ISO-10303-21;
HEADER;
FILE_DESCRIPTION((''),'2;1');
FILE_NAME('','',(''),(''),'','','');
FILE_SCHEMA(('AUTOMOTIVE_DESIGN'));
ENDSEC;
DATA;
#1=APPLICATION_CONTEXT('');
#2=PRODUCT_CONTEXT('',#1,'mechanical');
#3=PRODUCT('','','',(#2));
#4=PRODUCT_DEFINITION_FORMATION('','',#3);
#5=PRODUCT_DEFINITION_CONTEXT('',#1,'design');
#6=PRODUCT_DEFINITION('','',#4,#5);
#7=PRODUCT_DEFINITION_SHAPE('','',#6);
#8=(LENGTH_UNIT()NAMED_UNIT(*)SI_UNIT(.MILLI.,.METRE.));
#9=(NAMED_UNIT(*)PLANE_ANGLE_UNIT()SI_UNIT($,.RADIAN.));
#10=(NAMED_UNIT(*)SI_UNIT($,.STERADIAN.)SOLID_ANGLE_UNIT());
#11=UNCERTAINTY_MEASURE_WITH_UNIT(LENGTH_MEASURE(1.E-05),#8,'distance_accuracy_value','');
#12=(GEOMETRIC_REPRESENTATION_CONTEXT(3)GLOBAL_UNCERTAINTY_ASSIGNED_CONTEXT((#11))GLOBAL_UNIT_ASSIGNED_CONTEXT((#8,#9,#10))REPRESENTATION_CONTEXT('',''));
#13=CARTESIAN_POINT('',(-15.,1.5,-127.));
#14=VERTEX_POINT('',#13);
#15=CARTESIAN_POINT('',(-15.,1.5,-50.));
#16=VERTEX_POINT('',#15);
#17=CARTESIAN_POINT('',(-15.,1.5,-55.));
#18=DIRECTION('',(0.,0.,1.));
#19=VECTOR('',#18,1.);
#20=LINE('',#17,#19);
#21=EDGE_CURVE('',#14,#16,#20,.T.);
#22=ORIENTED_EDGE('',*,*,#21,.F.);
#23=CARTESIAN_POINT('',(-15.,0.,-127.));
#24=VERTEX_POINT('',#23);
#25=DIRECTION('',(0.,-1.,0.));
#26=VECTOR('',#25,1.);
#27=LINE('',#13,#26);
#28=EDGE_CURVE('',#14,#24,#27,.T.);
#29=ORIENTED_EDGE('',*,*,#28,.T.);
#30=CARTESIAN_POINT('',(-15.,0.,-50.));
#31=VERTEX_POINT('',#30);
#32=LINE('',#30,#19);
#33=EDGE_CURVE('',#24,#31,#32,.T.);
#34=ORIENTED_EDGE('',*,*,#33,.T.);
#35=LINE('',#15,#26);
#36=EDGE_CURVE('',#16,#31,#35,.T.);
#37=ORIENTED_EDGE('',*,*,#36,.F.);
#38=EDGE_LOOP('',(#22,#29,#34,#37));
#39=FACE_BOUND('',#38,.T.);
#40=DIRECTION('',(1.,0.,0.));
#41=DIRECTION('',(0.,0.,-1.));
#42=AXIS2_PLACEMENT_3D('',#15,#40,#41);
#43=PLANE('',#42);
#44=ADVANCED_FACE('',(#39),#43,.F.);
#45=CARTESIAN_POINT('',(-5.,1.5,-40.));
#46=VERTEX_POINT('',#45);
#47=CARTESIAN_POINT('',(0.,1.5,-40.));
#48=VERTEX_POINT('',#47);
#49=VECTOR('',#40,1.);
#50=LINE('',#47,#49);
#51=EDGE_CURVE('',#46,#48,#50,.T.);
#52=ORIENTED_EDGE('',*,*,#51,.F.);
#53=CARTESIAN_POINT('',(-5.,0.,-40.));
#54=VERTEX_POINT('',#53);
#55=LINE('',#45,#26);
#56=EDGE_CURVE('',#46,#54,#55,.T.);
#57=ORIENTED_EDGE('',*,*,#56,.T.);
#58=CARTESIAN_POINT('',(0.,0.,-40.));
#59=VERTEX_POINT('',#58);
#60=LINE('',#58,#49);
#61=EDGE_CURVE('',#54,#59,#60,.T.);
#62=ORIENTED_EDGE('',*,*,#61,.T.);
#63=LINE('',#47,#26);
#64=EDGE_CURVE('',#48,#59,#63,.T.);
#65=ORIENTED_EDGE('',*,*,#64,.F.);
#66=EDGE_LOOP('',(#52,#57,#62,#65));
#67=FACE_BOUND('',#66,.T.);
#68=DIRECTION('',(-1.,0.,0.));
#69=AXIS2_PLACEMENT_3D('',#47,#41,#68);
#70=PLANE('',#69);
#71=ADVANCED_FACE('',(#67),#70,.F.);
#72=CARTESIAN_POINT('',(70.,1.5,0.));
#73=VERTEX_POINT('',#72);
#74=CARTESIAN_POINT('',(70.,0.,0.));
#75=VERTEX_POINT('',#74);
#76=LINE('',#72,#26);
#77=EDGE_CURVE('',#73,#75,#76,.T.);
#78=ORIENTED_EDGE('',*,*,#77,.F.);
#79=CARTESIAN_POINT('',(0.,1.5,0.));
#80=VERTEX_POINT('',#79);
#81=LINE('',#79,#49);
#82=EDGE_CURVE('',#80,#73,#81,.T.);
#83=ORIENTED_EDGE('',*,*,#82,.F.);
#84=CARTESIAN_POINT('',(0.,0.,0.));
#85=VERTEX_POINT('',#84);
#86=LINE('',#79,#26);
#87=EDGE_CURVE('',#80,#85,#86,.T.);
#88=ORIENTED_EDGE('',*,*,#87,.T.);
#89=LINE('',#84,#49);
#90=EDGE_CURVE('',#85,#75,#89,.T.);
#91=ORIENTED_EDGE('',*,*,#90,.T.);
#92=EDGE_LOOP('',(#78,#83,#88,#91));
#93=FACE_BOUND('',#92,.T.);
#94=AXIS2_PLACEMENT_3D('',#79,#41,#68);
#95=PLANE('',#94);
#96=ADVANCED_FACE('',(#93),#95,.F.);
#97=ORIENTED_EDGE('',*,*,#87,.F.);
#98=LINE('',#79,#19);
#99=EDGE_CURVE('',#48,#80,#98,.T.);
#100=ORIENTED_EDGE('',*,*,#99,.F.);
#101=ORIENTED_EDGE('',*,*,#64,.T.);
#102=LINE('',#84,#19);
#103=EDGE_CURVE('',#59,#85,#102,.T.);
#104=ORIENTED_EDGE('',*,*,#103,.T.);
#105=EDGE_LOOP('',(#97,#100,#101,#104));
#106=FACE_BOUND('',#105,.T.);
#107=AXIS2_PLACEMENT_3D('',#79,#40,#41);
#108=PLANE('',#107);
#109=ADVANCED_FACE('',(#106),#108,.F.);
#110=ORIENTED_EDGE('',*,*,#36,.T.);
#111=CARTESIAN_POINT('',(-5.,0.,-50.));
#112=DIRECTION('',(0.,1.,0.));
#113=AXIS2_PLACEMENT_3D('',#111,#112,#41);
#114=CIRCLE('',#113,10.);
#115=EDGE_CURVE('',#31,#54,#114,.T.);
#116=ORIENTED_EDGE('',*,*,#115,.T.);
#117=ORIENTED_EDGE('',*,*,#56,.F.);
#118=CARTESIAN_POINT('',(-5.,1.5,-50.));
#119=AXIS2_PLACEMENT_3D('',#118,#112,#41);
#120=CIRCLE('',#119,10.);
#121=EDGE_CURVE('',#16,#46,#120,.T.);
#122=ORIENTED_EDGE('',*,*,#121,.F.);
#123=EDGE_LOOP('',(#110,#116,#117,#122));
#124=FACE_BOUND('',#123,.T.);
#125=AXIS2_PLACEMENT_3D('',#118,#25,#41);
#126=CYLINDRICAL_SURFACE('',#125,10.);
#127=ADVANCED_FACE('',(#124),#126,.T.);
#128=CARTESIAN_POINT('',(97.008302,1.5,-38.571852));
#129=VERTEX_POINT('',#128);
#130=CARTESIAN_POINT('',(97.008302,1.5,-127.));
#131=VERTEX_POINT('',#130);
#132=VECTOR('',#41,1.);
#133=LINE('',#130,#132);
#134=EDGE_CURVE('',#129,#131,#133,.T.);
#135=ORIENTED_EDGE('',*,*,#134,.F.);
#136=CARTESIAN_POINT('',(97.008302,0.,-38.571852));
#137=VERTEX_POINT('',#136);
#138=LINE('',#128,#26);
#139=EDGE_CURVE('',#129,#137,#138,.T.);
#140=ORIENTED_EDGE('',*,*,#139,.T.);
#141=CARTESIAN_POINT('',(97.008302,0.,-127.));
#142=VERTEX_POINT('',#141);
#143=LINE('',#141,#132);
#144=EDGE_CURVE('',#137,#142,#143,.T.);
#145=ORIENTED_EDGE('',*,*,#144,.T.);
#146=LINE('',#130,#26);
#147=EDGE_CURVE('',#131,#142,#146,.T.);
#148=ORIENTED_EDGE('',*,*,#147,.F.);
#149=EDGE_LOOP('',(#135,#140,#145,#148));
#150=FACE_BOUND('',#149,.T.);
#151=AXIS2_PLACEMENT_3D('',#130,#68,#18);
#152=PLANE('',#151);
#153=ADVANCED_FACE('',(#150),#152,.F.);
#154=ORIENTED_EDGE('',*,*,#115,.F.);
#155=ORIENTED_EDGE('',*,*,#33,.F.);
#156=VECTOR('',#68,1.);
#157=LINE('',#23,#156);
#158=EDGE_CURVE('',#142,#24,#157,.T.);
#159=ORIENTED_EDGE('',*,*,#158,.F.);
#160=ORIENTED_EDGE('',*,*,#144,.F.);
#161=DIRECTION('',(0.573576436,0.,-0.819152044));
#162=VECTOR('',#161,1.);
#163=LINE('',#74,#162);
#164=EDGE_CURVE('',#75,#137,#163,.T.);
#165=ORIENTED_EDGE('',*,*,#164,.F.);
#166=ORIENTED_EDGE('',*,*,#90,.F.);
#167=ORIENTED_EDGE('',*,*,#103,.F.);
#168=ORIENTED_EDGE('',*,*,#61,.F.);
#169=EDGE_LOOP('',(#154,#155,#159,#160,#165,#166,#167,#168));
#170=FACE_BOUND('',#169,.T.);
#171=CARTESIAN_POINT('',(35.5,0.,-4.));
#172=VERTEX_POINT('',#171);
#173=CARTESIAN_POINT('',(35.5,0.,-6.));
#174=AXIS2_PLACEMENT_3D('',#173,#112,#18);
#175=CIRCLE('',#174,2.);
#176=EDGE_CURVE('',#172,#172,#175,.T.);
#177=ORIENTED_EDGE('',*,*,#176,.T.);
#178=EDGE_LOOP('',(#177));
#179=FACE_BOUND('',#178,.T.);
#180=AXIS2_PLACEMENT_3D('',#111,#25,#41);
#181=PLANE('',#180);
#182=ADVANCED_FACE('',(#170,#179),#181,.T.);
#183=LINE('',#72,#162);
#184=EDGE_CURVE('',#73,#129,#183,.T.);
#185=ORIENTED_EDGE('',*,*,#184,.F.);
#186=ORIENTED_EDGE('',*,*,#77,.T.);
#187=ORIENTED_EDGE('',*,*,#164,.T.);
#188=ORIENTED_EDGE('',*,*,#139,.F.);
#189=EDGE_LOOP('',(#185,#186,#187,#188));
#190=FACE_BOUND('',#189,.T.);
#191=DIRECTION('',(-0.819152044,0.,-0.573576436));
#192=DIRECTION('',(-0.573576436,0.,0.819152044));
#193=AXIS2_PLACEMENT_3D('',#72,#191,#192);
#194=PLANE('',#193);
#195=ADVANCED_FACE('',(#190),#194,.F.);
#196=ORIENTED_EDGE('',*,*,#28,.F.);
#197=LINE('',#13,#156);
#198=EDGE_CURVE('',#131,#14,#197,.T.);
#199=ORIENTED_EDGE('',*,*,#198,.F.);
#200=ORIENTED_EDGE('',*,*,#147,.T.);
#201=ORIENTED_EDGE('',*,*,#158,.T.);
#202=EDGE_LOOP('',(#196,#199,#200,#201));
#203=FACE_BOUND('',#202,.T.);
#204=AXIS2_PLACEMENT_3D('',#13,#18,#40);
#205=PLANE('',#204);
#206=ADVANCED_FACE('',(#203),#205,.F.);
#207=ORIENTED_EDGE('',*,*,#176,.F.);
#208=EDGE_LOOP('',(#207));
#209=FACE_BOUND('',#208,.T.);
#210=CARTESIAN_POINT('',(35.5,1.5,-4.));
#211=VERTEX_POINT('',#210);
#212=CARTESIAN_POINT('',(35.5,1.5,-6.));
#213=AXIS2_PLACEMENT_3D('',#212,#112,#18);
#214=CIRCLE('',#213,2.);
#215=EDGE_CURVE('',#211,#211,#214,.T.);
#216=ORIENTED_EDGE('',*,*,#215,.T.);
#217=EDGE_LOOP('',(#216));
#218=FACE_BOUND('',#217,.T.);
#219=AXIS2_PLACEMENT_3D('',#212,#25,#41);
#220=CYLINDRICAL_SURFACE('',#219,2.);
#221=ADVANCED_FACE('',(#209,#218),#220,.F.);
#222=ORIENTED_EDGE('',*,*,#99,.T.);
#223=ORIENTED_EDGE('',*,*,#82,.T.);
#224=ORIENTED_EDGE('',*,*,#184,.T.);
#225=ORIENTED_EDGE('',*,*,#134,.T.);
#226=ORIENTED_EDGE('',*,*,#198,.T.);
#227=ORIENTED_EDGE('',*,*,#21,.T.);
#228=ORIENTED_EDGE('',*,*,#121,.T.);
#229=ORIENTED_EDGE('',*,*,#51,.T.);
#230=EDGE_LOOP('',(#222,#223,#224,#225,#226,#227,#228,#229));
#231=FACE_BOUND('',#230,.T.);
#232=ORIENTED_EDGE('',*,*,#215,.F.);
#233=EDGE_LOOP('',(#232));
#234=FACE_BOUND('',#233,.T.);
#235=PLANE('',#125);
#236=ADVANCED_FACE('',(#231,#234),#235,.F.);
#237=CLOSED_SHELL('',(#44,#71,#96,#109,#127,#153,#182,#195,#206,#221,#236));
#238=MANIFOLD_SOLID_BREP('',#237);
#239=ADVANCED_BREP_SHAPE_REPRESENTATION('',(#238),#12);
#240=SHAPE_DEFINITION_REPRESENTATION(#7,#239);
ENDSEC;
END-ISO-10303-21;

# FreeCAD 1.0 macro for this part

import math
import FreeCAD as App
import Part
import Sketcher

V = App.Vector
Q = App.Units.Quantity

doc = App.newDocument("Part")
body = doc.addObject("PartDesign::Body", "Body")

sketch1 = doc.addObject("Sketcher::SketchObject", "Sketch")
body.addObject(sketch1)
sketch1.AttachmentSupport = (doc.XZ_Plane, [""])
sketch1.MapMode = "FlatFace"
sketch1.addGeometry([
    Part.LineSegment(V(0, 0, 0), V(70, 0, 0)),
    Part.LineSegment(V(70, 0, 0), V(97, -38.6, 0)),
    Part.LineSegment(V(97, -38.6, 0), V(97, -127, 0)),
    Part.LineSegment(V(97, -127, 0), V(-15, -127, 0)),
    Part.LineSegment(V(-15, -127, 0), V(-15, -50, 0)),
    Part.ArcOfCircle(Part.Circle(V(-5, -50, 0), V(0, 0, 1), 10), math.radians(90), math.radians(180)),
    Part.LineSegment(V(-5, -40, 0), V(0, -40, 0)),
    Part.LineSegment(V(0, -40, 0), V(0, 0, 0)),
    Part.Circle(V(35.5, -6, 0), V(0, 0, 1), 2),
], False)
sketch1.addConstraint([
    Sketcher.Constraint("Coincident", 0, 2, 1, 1),
    Sketcher.Constraint("Coincident", 1, 2, 2, 1),
    Sketcher.Constraint("Coincident", 2, 2, 3, 1),
    Sketcher.Constraint("Coincident", 3, 2, 4, 1),
    Sketcher.Constraint("Tangent", 4, 2, 5, 2),
    Sketcher.Constraint("Tangent", 5, 1, 6, 1),
    Sketcher.Constraint("Coincident", 6, 2, 7, 1),
    Sketcher.Constraint("Coincident", 7, 2, 0, 1),
    Sketcher.Constraint("Horizontal", 0),
    Sketcher.Constraint("Vertical", 2),
    Sketcher.Constraint("Horizontal", 3),
    Sketcher.Constraint("Vertical", 4),
    Sketcher.Constraint("Horizontal", 6),
    Sketcher.Constraint("Vertical", 7),
    Sketcher.Constraint("Coincident", 7, 2, -1, 1),
    Sketcher.Constraint("Diameter", 8, Q("4 mm")),
    Sketcher.Constraint("Radius", 5, Q("10 mm")),
    Sketcher.Constraint("DistanceX", 0, 1, 0, 2, Q("70 mm")),
    Sketcher.Constraint("DistanceX", 6, 1, 6, 2, Q("5 mm")),
    Sketcher.Constraint("DistanceY", 4, 1, 4, 2, Q("77 mm")),
    Sketcher.Constraint("DistanceY", 7, 1, 7, 2, Q("40 mm")),
    Sketcher.Constraint("Angle", 1, Q("-55 deg")),
    Sketcher.Constraint("DistanceY", 8, 3, -1, 1, Q("6 mm")),
    Sketcher.Constraint("DistanceX", -1, 1, 8, 3, Q("35.5 mm")),
    Sketcher.Constraint("DistanceX", 3, 2, 3, 1, Q("112.008302 mm")),
])
pad1 = doc.addObject("PartDesign::Pad", "Pad")
body.addObject(pad1)
pad1.Profile = sketch1
pad1.Length = 1.5
pad1.Reversed = True

doc.recompute()
